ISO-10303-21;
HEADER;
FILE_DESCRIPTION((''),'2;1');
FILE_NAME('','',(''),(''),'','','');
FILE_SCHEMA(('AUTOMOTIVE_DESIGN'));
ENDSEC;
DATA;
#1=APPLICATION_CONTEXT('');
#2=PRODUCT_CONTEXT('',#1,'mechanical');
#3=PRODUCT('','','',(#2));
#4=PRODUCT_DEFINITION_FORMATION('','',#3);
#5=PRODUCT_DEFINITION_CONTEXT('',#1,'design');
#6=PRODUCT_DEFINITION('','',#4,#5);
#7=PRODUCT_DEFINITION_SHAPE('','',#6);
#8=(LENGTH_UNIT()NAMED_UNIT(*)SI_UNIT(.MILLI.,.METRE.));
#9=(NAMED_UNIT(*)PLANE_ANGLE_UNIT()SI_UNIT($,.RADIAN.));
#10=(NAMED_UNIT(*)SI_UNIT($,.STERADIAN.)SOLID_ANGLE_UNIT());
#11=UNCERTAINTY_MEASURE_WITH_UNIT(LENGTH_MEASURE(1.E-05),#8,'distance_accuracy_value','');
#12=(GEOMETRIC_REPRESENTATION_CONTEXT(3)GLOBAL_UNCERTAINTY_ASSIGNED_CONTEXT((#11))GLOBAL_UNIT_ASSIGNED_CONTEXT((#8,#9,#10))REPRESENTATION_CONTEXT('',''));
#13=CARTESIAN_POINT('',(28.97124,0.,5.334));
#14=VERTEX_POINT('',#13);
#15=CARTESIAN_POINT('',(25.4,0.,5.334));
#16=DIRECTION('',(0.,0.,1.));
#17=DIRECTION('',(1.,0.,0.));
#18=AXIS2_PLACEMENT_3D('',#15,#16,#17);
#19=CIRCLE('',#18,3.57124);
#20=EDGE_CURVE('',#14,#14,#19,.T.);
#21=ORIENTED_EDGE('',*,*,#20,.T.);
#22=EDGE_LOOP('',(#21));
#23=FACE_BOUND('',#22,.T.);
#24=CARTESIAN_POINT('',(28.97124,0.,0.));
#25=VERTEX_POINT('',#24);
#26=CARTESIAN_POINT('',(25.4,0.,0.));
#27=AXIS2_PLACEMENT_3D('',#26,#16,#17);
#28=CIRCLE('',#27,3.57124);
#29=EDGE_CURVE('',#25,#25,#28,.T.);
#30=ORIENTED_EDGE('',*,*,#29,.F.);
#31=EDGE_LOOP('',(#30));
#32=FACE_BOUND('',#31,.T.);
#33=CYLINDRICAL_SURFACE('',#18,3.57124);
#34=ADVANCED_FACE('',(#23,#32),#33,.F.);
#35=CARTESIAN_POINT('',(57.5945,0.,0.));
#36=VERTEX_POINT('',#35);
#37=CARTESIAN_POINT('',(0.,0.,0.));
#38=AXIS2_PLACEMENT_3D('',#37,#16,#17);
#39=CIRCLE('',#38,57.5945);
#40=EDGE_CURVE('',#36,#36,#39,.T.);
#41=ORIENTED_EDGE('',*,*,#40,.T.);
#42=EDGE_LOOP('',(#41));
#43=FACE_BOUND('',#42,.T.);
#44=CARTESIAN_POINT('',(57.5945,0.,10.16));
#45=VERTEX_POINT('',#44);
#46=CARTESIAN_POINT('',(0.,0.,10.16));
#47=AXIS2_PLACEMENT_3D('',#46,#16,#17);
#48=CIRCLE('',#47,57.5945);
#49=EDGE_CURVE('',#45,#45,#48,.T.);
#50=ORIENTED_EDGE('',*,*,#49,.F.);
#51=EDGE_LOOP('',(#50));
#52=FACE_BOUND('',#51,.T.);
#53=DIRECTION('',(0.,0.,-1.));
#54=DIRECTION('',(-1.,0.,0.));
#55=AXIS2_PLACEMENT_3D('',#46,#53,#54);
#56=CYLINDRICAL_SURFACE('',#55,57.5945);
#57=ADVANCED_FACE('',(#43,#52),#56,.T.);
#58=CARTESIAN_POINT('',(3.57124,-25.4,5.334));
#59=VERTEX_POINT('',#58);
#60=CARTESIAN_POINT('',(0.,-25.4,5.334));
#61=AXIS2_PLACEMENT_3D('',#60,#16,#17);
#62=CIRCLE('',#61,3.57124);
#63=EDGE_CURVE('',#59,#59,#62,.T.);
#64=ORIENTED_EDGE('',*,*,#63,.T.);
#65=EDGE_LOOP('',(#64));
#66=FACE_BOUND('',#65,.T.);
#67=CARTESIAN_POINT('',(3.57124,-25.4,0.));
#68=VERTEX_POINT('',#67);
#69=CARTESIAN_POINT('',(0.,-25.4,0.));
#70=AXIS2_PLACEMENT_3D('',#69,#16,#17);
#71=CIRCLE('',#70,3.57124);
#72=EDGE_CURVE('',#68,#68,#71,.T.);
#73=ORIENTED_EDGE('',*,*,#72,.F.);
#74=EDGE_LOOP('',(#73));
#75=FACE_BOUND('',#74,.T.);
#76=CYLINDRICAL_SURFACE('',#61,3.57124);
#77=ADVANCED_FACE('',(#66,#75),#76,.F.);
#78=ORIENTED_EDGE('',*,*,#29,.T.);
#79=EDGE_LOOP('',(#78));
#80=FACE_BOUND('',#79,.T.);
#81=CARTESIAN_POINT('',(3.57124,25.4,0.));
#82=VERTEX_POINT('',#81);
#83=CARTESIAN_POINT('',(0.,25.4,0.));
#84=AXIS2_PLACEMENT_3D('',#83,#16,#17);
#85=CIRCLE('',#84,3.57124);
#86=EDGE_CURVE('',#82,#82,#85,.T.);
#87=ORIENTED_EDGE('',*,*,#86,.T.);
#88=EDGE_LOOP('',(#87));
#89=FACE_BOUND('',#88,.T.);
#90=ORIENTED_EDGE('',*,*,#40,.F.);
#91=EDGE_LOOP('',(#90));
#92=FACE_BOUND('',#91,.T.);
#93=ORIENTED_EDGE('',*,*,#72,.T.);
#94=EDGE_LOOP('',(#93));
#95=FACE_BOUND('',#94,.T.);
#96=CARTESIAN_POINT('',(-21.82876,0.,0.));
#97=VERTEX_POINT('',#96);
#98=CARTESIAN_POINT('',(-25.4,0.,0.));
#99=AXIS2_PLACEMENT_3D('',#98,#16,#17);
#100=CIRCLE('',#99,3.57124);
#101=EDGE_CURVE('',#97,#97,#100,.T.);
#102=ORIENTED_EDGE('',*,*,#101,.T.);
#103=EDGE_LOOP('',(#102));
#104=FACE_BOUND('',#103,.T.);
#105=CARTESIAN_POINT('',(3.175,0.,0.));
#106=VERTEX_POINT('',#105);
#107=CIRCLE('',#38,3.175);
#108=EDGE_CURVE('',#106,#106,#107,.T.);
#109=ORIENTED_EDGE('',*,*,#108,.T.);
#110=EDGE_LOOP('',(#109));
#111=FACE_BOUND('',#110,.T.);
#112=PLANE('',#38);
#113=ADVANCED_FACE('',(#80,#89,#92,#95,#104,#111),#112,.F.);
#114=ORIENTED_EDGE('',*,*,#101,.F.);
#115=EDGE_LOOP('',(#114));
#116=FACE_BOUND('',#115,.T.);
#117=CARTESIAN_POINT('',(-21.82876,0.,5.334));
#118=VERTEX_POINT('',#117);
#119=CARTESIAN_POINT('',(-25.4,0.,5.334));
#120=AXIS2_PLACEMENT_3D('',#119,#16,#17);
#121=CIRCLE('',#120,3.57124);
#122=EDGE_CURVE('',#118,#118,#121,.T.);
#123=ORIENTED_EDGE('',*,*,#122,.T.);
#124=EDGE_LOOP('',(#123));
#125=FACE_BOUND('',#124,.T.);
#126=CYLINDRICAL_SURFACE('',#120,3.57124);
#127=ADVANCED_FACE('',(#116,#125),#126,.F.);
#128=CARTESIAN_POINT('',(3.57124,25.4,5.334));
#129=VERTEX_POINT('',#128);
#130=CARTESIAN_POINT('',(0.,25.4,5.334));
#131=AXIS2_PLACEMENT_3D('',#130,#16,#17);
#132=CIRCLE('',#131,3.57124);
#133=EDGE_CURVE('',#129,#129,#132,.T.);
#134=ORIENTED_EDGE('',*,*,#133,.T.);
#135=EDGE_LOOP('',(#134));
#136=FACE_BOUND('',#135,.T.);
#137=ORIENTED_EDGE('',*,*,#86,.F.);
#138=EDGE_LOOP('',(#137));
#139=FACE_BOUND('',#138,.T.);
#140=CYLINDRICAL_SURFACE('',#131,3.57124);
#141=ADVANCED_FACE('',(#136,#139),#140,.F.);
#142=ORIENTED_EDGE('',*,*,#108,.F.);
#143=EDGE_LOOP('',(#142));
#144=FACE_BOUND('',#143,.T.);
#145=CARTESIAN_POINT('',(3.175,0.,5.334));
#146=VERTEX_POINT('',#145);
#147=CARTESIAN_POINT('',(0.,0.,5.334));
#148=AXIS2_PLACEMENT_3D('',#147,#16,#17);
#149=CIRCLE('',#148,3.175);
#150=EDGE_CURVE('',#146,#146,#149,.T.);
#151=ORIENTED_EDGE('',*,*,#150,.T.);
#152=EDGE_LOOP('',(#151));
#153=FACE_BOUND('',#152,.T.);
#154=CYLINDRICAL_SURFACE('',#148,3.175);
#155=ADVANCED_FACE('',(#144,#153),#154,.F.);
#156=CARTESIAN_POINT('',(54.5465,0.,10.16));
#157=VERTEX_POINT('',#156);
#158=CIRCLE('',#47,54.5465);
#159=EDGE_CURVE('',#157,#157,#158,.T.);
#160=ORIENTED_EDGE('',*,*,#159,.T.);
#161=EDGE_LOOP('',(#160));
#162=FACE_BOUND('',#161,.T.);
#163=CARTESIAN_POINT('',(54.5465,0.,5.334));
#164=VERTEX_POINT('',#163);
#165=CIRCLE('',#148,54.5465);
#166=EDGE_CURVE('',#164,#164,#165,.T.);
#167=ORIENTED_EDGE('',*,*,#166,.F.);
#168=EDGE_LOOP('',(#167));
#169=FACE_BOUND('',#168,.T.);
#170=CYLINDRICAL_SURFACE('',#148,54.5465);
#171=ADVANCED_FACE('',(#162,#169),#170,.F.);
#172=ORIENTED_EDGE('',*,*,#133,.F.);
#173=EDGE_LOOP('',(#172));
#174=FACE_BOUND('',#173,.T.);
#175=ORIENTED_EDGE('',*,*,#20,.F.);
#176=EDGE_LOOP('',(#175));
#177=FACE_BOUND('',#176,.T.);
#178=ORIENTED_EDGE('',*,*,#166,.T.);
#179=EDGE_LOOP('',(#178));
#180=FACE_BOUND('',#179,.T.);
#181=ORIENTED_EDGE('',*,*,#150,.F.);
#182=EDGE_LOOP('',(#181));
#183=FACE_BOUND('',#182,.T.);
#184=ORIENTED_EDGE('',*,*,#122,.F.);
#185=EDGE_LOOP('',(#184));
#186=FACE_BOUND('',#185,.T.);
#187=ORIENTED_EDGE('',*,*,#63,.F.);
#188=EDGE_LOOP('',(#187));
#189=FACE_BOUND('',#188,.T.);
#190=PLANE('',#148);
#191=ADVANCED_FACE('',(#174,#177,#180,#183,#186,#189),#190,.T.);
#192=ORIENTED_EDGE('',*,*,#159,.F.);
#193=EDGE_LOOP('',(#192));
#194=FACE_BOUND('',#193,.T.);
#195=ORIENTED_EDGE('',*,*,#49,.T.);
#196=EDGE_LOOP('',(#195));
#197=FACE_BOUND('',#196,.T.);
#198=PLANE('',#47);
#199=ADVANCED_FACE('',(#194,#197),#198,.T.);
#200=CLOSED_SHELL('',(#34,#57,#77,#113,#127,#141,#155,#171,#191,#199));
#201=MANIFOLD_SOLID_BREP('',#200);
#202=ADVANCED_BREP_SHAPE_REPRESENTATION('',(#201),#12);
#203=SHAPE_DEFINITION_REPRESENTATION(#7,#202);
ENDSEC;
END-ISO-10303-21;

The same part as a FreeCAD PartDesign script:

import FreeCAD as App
import Part
import Sketcher
from FreeCAD import Vector
Q = App.Units.Quantity

doc = App.newDocument("Part")
body = doc.addObject("PartDesign::Body", "Body")

# Sketch on XY plane
sketch1 = body.newObject("Sketcher::SketchObject", "Sketch")
sketch1.AttachmentSupport = (doc.getObject("XY_Plane"), [""])
sketch1.MapMode = "FlatFace"
sketch1.addGeometry(Part.Circle(Vector(0, 0, 0), Vector(0, 0, 1), 57.5945), False)
sketch1.addConstraint([
    Sketcher.Constraint("Coincident", 0, 3, -1, 1),
    Sketcher.Constraint("Diameter", 0, Q("4.535 in")),
])
pad1 = body.newObject("PartDesign::Pad", "Pad")
pad1.Profile = sketch1
pad1.Length = Q("0.4 in")

# Sketch on XY plane
sketch2 = body.newObject("Sketcher::SketchObject", "Sketch001")
sketch2.AttachmentSupport = (doc.getObject("XY_Plane"), [""])
sketch2.MapMode = "FlatFace"
sketch2.AttachmentOffset = App.Placement(Vector(0, 0, 0.4 * 25.4), App.Rotation())
sketch2.addGeometry(Part.Circle(Vector(0, 0, 0), Vector(0, 0, 1), 54.5465), False)
sketch2.addConstraint([
    Sketcher.Constraint("Coincident", 0, 3, -1, 1),
    Sketcher.Constraint("Diameter", 0, Q("4.295 in")),
])
pocket1 = body.newObject("PartDesign::Pocket", "Pocket")
pocket1.Profile = sketch2
pocket1.Length = Q("0.19 in")

# Sketch on XY plane
sketch3 = body.newObject("Sketcher::SketchObject", "Sketch002")
sketch3.AttachmentSupport = (doc.getObject("XY_Plane"), [""])
sketch3.MapMode = "FlatFace"
sketch3.AttachmentOffset = App.Placement(Vector(0, 0, 0.21 * 25.4), App.Rotation())
sketch3.addGeometry(Part.Circle(Vector(0, 0, 0), Vector(0, 0, 1), 3.175), False)
sketch3.addConstraint([
    Sketcher.Constraint("Coincident", 0, 3, -1, 1),
    Sketcher.Constraint("Diameter", 0, Q("0.25 in")),
])
doc.recompute()
hole = body.newObject("PartDesign::Hole", "Hole")
hole.Profile = sketch3
hole.ThreadType = "None"
hole.Diameter = Q("0.25 in")
hole.DepthType = "Dimension"
hole.Depth = Q("0.25 in")
hole.DrillPoint = "Angled"
hole.DrillPointAngle = 118

# Sketch on XY plane
sketch4 = body.newObject("Sketcher::SketchObject", "Sketch003")
sketch4.AttachmentSupport = (doc.getObject("XY_Plane"), [""])
sketch4.MapMode = "FlatFace"
sketch4.AttachmentOffset = App.Placement(Vector(0, 0, 0.21 * 25.4), App.Rotation())
sketch4.addGeometry(Part.Circle(Vector(25.4, 0, 0), Vector(0, 0, 1), 3.57124), False)
sketch4.addConstraint([
    Sketcher.Constraint("PointOnObject", 0, 3, -1),
    Sketcher.Constraint("DistanceX", -1, 1, 0, 3, Q("1 in")),
    Sketcher.Constraint("Diameter", 0, Q("0.2812 in")),
])
doc.recompute()
hole2 = body.newObject("PartDesign::Hole", "Hole001")
hole2.Profile = sketch4
hole2.ThreadType = "None"
hole2.Diameter = Q("0.2812 in")
hole2.DepthType = "ThroughAll"
doc.recompute()

polarpattern = body.newObject("PartDesign::PolarPattern", "PolarPattern")
polarpattern.Originals = [hole2]
polarpattern.Axis = (doc.getObject("Z_Axis"), [""])
polarpattern.Angle = 360
polarpattern.Occurrences = 4
body.Tip = polarpattern

doc.recompute()
